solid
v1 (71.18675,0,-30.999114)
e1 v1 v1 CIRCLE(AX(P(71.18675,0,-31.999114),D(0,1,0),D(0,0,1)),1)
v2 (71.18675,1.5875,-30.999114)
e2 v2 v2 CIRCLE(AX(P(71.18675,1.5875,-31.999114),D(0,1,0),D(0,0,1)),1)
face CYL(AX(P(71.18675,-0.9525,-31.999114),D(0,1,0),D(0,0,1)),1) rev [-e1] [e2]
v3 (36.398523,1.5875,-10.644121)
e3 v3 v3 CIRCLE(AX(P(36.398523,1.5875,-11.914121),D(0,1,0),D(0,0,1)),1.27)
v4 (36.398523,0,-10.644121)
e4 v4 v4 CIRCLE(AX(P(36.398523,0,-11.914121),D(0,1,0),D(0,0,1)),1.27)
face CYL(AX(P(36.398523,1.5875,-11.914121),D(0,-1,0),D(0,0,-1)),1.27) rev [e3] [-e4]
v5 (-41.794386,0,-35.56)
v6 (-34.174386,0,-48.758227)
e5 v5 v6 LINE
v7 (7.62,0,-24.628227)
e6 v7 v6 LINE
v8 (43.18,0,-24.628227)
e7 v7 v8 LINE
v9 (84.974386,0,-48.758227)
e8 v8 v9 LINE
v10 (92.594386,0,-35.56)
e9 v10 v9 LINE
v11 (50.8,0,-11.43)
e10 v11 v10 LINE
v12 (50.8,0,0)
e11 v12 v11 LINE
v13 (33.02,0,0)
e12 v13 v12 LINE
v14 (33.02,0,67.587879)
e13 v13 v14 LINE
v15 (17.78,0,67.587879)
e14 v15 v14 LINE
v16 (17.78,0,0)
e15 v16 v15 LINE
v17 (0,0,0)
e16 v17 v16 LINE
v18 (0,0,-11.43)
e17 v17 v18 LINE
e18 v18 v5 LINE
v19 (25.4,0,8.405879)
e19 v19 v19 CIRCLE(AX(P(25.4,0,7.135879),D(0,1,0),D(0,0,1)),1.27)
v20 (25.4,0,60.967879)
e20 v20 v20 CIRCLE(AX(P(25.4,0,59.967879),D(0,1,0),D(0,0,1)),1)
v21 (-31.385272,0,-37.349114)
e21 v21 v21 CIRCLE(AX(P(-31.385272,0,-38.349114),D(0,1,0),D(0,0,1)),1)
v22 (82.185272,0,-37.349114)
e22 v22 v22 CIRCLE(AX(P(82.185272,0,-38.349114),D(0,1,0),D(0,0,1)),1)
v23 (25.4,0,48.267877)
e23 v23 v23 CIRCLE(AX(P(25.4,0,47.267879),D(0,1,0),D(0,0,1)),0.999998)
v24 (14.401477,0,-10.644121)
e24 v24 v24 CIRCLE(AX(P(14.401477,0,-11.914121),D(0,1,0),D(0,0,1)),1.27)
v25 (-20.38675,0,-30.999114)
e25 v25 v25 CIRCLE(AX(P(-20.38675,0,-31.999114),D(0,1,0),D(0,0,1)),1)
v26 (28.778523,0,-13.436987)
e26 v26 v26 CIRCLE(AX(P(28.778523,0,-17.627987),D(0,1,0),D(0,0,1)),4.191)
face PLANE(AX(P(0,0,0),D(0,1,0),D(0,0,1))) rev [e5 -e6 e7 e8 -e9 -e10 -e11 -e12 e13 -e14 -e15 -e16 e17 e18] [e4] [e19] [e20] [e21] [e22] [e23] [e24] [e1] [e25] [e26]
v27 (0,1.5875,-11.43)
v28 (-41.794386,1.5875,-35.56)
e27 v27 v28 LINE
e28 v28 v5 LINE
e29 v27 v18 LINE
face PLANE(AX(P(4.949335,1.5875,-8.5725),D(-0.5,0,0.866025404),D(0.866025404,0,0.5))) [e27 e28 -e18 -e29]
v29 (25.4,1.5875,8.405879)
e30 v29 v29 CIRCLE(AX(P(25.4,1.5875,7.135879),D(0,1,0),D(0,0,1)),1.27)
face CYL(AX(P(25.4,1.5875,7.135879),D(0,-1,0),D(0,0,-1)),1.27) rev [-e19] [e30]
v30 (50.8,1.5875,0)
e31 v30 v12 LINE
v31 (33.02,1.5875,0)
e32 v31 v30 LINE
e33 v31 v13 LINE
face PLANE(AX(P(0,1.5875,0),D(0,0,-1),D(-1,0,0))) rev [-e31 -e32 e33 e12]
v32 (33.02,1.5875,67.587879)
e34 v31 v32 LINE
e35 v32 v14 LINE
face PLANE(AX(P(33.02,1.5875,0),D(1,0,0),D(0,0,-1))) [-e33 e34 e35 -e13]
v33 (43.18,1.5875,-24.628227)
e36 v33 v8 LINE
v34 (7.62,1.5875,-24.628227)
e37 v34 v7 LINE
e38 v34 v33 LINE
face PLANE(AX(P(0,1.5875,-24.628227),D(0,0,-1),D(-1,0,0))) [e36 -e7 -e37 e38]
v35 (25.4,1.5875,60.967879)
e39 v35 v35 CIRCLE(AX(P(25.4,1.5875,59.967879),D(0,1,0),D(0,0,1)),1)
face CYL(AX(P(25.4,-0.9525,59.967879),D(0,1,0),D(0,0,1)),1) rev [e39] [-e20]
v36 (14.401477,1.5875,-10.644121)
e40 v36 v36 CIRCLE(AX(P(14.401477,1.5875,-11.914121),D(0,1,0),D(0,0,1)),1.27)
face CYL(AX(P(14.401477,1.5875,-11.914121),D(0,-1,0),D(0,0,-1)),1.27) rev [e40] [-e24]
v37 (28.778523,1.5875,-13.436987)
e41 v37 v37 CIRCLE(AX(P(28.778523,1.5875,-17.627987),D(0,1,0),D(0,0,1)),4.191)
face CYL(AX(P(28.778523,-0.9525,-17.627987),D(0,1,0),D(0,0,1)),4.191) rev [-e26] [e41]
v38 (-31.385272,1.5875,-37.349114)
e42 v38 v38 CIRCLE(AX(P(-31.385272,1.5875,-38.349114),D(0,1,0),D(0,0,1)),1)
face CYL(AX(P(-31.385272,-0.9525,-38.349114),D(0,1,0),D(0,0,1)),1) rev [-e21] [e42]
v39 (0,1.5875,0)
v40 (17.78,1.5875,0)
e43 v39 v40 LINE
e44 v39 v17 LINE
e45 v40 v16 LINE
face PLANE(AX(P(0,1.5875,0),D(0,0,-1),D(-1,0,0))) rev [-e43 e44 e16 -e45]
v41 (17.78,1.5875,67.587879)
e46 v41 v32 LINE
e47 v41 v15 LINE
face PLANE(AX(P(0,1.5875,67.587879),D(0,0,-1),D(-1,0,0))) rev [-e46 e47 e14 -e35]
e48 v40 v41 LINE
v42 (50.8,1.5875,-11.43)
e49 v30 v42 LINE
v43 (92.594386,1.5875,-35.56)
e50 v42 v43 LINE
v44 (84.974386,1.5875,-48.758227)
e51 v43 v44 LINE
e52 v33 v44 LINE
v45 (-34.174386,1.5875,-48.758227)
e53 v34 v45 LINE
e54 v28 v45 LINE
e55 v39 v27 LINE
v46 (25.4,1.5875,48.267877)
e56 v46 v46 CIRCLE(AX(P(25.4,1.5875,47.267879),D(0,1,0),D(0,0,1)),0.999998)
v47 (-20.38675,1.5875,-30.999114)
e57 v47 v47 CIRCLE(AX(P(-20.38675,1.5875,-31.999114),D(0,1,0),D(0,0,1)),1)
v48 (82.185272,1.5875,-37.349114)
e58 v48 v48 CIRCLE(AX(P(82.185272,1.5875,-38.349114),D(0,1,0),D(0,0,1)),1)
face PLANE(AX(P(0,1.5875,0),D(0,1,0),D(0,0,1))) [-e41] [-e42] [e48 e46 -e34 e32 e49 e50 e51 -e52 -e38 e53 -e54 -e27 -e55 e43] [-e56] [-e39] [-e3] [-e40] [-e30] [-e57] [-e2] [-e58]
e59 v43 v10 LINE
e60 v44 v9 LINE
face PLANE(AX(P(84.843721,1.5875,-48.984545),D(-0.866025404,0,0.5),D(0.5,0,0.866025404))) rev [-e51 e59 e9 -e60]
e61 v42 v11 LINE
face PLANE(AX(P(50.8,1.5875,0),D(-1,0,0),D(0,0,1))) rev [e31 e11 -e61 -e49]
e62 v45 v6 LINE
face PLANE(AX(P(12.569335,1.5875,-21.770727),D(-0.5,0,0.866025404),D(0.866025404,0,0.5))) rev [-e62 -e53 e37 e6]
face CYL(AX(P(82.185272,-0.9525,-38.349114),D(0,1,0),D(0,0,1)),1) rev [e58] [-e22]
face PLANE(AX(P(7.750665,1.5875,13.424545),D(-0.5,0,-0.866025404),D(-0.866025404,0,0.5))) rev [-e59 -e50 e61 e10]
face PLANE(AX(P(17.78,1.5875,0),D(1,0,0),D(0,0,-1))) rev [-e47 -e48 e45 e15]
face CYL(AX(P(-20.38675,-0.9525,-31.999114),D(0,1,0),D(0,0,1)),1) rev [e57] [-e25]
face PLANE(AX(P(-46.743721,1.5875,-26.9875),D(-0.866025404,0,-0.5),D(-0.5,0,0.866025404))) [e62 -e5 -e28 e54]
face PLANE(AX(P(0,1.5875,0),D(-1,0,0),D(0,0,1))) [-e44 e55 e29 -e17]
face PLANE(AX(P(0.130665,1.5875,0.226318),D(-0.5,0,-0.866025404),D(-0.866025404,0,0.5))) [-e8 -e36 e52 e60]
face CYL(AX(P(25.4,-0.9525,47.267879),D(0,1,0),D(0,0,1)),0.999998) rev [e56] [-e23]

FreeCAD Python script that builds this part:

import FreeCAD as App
import Part
import Sketcher

V = App.Vector
Q = App.Units.Quantity

doc = App.newDocument("Part")
body = doc.addObject("PartDesign::Body", "Body")

# Sketch on XZ plane
sketch1 = doc.addObject("Sketcher::SketchObject", "Sketch")
body.addObject(sketch1)
sketch1.AttachmentSupport = (doc.XZ_Plane, [""])
sketch1.MapMode = "FlatFace"
sketch1.addGeometry([
    Part.LineSegment(V(-41.794386, -35.56, 0), V(0, -11.43, 0)),  # 0
    Part.LineSegment(V(0, -11.43, 0), V(0, 0, 0)),  # 1
    Part.LineSegment(V(0, 0, 0), V(17.78, 0, 0)),  # 2
    Part.LineSegment(V(17.78, 0, 0), V(17.78, 67.587879, 0)),  # 3
    Part.LineSegment(V(17.78, 67.587879, 0), V(33.02, 67.587879, 0)),  # 4
    Part.LineSegment(V(33.02, 67.587879, 0), V(33.02, 0, 0)),  # 5
    Part.LineSegment(V(33.02, 0, 0), V(50.8, 0, 0)),  # 6
    Part.LineSegment(V(50.8, 0, 0), V(50.8, -11.43, 0)),  # 7
    Part.LineSegment(V(50.8, -11.43, 0), V(92.594386, -35.56, 0)),  # 8
    Part.LineSegment(V(92.594386, -35.56, 0), V(84.974386, -48.758227, 0)),  # 9
    Part.LineSegment(V(84.974386, -48.758227, 0), V(43.18, -24.628227, 0)),  # 10
    Part.LineSegment(V(43.18, -24.628227, 0), V(7.62, -24.628227, 0)),  # 11
    Part.LineSegment(V(7.62, -24.628227, 0), V(-34.174386, -48.758227, 0)),  # 12
    Part.LineSegment(V(-34.174386, -48.758227, 0), V(-41.794386, -35.56, 0)),  # 13
    Part.Circle(V(25.4, 7.135879, 0), V(0, 0, 1), 1.27),  # 14
    Part.Circle(V(14.401477, -11.914121, 0), V(0, 0, 1), 1.27),  # 15
    Part.Circle(V(36.398523, -11.914121, 0), V(0, 0, 1), 1.27),  # 16
], False)
sketch1.addConstraint([
    Sketcher.Constraint("Coincident", 0, 2, 1, 1),
    Sketcher.Constraint("Coincident", 1, 2, 2, 1),
    Sketcher.Constraint("Coincident", 2, 2, 3, 1),
    Sketcher.Constraint("Coincident", 3, 2, 4, 1),
    Sketcher.Constraint("Coincident", 4, 2, 5, 1),
    Sketcher.Constraint("Coincident", 5, 2, 6, 1),
    Sketcher.Constraint("Coincident", 6, 2, 7, 1),
    Sketcher.Constraint("Coincident", 7, 2, 8, 1),
    Sketcher.Constraint("Coincident", 8, 2, 9, 1),
    Sketcher.Constraint("Coincident", 9, 2, 10, 1),
    Sketcher.Constraint("Coincident", 10, 2, 11, 1),
    Sketcher.Constraint("Coincident", 11, 2, 12, 1),
    Sketcher.Constraint("Coincident", 12, 2, 13, 1),
    Sketcher.Constraint("Coincident", 13, 2, 0, 1),
    Sketcher.Constraint("Vertical", 1),
    Sketcher.Constraint("Horizontal", 2),
    Sketcher.Constraint("Vertical", 3),
    Sketcher.Constraint("Horizontal", 4),
    Sketcher.Constraint("Vertical", 5),
    Sketcher.Constraint("Horizontal", 6),
    Sketcher.Constraint("Vertical", 7),
    Sketcher.Constraint("Horizontal", 11),
    Sketcher.Constraint("Coincident", 1, 2, -1, 1),
    Sketcher.Constraint("Equal", 14, 15),
    Sketcher.Constraint("Equal", 15, 16),
    Sketcher.Constraint("PointOnObject", 5, 2, -1),
    Sketcher.Constraint("Perpendicular", 8, 9),
    Sketcher.Constraint("Perpendicular", 9, 10),
    Sketcher.Constraint("Parallel", 0, 12),
    Sketcher.Constraint("Perpendicular", 12, 13),
    Sketcher.Constraint("Horizontal", 15, 3, 16, 3),
    Sketcher.Constraint("Horizontal", 0, 2, 7, 2),
    Sketcher.Constraint("Horizontal", 9, 2, 12, 2),
    Sketcher.Constraint("Horizontal", 8, 2, 13, 2),
    Sketcher.Constraint("Equal", 2, 6),
    Sketcher.Constraint("Equal", 0, 8),
    Sketcher.Constraint("Equal", 8, 10),
    Sketcher.Constraint("Diameter", 14, Q("0.1 in")),
    Sketcher.Constraint("DistanceX", 2, 1, 2, 2, Q("0.7 in")),
    Sketcher.Constraint("DistanceX", 4, 1, 4, 2, Q("0.6 in")),
    Sketcher.Constraint("DistanceX", 11, 2, 11, 1, Q("1.4 in")),
    Sketcher.Constraint("DistanceX", -1, 1, 14, 3, Q("1 in")),
    Sketcher.Constraint("Angle", 0, Q("30 deg")),
    Sketcher.Constraint("Distance", 0, Q("1.9 in")),
    Sketcher.Constraint("DistanceY", 1, 1, 1, 2, Q("0.45 in")),
    Sketcher.Constraint("DistanceY", 15, 3, 14, 3, Q("0.75 in")),
    Sketcher.Constraint("DistanceY", 14, 3, 3, 2, Q("2.38 in")),
    Sketcher.Constraint("DistanceY", 3, 1, 3, 2, 67.587879),
    Sketcher.Constraint("DistanceX", -1, 1, 15, 3, 14.401477),
    Sketcher.Constraint("DistanceX", -1, 1, 16, 3, 36.398523),
])
pad1 = doc.addObject("PartDesign::Pad", "Pad")
body.addObject(pad1)
pad1.Profile = sketch1
pad1.Length = Q("0.0625 in")
pad1.Reversed = True

# Sketch on XZ plane
sketch2 = doc.addObject("Sketcher::SketchObject", "Sketch001")
body.addObject(sketch2)
sketch2.AttachmentSupport = (doc.XZ_Plane, [""])
sketch2.MapMode = "FlatFace"
sketch2.AttachmentOffset = App.Placement(V(0, 0, -0.0625 * 25.4), App.Rotation())
sketch2.addGeometry(Part.Circle(V(28.778523, -17.627987, 0), V(0, 0, 1), 4.191), False)
sketch2.addConstraint([
    Sketcher.Constraint("Diameter", 0, Q("0.33 in")),
    Sketcher.Constraint("DistanceX", -1, 1, 0, 3, 28.778523),
    Sketcher.Constraint("DistanceY", 0, 3, -1, 1, 17.627987),
])
pocket1 = doc.addObject("PartDesign::Pocket", "Pocket")
body.addObject(pocket1)
pocket1.Profile = sketch2
pocket1.Length = Q("0.1 in")
pocket1.Reversed = True

# Sketch on XZ plane
sketch3 = doc.addObject("Sketcher::SketchObject", "Sketch002")
body.addObject(sketch3)
sketch3.AttachmentSupport = (doc.XZ_Plane, [""])
sketch3.MapMode = "FlatFace"
sketch3.AttachmentOffset = App.Placement(V(0, 0, -0.0625 * 25.4), App.Rotation())
sketch3.addGeometry([
    Part.Circle(V(25.4, 59.967879, 0), V(0, 0, 1), 1),  # 0
    Part.Circle(V(25.4, 47.267879, 0), V(0, 0, 1), 0.999998),  # 1
    Part.Circle(V(-20.38675, -31.999114, 0), V(0, 0, 1), 1),  # 2
    Part.Circle(V(-31.385272, -38.349114, 0), V(0, 0, 1), 1),  # 3
    Part.Circle(V(82.185272, -38.349114, 0), V(0, 0, 1), 1),  # 4
    Part.Circle(V(71.18675, -31.999114, 0), V(0, 0, 1), 1),  # 5
], False)
sketch3.addConstraint([
    Sketcher.Constraint("Equal", 0, 1),
    Sketcher.Constraint("Equal", 1, 2),
    Sketcher.Constraint("Equal", 2, 3),
    Sketcher.Constraint("Equal", 3, 4),
    Sketcher.Constraint("Equal", 4, 5),
    Sketcher.Constraint("Horizontal", 3, 3, 4, 3),
    Sketcher.Constraint("Horizontal", 2, 3, 5, 3),
    Sketcher.Constraint("Vertical", 0, 3, 1, 3),
    Sketcher.Constraint("DistanceX", -1, 1, 0, 3, Q("1 in")),
    Sketcher.Constraint("DistanceY", 1, 3, 0, 3, Q("0.5 in")),
    Sketcher.Constraint("Diameter", 0, 2.0),
    Sketcher.Constraint("DistanceY", 3, 3, 2, 3, Q("0.25 in")),
    Sketcher.Constraint("DistanceX", 2, 3, 5, 3, 91.5735),
    Sketcher.Constraint("DistanceY", -1, 1, 0, 3, 59.967879),
    Sketcher.Constraint("DistanceX", 2, 3, -1, 1, 20.38675),
    Sketcher.Constraint("DistanceY", 2, 3, -1, 1, 31.999114),
    Sketcher.Constraint("DistanceX", 3, 3, -1, 1, 31.385272),
    Sketcher.Constraint("DistanceX", -1, 1, 4, 3, 82.185272),
])
pocket2 = doc.addObject("PartDesign::Pocket", "Pocket001")
body.addObject(pocket2)
pocket2.Profile = sketch3
pocket2.Length = Q("0.1 in")
pocket2.Reversed = True

doc.recompute()
